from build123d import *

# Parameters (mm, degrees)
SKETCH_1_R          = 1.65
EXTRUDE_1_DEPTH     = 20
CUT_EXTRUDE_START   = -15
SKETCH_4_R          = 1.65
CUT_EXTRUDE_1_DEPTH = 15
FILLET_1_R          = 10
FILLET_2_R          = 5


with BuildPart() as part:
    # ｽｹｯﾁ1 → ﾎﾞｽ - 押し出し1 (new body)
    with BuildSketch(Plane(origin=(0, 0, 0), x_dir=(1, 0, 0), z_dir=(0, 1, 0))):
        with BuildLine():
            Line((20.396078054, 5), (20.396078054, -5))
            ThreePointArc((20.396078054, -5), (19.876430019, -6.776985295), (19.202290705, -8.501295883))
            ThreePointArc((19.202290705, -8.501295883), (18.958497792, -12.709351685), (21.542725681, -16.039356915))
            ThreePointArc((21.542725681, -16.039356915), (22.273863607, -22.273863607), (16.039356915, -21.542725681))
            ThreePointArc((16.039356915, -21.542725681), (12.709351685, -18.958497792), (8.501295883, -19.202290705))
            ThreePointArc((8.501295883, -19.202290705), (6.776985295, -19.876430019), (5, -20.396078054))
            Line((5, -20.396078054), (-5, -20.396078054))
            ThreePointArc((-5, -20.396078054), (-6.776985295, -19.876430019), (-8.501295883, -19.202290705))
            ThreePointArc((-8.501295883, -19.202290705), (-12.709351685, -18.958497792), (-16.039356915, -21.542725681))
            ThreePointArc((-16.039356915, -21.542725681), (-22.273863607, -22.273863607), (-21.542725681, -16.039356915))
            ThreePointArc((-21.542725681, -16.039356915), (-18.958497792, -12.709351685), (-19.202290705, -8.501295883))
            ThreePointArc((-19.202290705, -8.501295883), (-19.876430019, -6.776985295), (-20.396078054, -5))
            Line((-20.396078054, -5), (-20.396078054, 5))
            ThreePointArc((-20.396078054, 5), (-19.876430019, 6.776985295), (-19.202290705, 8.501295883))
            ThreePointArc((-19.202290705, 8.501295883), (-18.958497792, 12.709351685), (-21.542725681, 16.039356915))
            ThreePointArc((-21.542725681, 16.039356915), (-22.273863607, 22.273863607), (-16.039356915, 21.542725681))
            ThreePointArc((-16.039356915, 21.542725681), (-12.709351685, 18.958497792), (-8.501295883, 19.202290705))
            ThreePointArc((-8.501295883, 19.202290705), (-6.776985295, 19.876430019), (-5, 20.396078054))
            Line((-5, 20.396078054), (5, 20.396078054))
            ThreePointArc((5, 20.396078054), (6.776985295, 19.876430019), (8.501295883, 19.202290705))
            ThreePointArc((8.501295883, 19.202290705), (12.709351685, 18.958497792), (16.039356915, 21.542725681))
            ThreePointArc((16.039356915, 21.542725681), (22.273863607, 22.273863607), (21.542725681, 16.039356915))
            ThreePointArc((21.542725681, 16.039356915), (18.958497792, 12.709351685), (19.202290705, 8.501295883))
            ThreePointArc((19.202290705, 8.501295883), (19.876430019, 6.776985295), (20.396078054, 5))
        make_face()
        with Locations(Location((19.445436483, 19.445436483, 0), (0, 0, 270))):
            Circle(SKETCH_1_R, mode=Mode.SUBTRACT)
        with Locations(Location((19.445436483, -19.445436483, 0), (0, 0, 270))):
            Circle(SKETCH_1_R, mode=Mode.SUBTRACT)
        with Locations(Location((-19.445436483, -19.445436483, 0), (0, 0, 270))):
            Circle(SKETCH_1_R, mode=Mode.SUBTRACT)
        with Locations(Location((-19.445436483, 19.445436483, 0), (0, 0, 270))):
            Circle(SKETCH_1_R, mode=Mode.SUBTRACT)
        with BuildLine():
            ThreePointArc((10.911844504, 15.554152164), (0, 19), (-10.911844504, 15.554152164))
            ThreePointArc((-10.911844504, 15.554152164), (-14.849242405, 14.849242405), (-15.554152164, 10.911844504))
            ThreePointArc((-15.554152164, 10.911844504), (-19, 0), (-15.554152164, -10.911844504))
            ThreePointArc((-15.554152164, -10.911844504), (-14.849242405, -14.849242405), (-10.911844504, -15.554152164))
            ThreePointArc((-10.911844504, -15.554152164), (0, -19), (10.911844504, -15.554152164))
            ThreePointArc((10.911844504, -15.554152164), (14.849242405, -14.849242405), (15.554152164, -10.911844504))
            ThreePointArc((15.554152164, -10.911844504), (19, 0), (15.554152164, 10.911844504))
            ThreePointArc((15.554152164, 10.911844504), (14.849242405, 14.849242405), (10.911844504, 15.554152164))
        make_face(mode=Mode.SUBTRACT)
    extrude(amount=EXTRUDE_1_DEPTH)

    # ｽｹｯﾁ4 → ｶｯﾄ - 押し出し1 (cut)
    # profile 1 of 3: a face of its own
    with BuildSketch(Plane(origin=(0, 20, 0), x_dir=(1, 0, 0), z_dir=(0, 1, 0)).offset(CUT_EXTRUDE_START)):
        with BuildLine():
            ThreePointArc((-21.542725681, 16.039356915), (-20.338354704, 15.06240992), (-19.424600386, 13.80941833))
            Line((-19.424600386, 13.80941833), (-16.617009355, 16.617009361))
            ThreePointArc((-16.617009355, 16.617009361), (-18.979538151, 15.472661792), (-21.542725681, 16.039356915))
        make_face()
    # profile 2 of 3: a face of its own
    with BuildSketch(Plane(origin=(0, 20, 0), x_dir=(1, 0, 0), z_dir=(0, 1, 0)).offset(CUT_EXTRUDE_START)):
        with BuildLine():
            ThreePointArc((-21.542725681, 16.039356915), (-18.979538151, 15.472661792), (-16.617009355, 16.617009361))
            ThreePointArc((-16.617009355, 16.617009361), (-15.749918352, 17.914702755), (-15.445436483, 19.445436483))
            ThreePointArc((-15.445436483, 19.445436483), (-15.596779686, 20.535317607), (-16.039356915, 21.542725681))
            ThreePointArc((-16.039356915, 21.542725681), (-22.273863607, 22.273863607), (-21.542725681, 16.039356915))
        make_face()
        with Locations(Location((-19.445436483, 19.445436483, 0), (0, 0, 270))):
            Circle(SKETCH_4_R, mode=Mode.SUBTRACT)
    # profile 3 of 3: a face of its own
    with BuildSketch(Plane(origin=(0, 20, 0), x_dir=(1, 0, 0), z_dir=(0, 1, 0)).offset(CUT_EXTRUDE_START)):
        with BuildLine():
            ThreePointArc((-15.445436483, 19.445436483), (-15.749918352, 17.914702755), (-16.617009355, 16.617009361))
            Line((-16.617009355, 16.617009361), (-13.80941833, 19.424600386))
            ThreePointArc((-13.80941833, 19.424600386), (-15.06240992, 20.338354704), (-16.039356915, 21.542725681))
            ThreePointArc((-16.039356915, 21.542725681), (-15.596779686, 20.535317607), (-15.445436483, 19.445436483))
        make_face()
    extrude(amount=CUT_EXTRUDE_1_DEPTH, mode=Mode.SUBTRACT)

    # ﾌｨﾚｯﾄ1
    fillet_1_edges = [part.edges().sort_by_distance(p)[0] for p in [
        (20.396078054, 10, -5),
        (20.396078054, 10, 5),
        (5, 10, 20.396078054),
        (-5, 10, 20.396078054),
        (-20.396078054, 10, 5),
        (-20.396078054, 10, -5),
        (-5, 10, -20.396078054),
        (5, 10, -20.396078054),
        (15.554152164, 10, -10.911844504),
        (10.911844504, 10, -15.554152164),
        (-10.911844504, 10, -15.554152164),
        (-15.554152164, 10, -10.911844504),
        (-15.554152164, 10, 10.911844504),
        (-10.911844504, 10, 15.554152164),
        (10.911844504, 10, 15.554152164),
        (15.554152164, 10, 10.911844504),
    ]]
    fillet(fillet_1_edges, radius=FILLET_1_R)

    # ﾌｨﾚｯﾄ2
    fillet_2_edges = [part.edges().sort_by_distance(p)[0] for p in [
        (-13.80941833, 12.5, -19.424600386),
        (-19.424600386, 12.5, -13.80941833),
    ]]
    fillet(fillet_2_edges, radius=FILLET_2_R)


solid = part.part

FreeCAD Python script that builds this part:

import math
import FreeCAD as App
import Part
import Sketcher
Q = App.Units.Quantity


def edges_at(feature, points):
    """Names of the edges that pass closest to the given points."""
    edges = feature.Shape.Edges
    near = lambda p: min(range(len(edges)), key=lambda i: edges[i].distToShape(Part.Vertex(*p))[0])
    return sorted({f"Edge{near(p) + 1}" for p in points})

doc = App.newDocument("Part")
body = doc.addObject("PartDesign::Body", "Body")

sketch1 = body.newObject("Sketcher::SketchObject", "Sketch")
sketch1.AttachmentSupport = (doc.getObject("XZ_Plane"), [""])
sketch1.MapMode = "FlatFace"
sketch1.addGeometry([
    Part.LineSegment(App.Vector(20.4, 5, 0), App.Vector(20.4, -5, 0)),
    Part.ArcOfCircle(Part.Circle(App.Vector(0, 0, 0), App.Vector(0, 0, 1), 21), math.radians(-23.88), math.radians(-13.77)),
    Part.ArcOfCircle(Part.Circle(App.Vector(24.7, -10.9, 0), App.Vector(0, 0, 1), 6), math.radians(156), math.radians(238)),
    Part.ArcOfCircle(Part.Circle(App.Vector(19.4, -19.4, 0), App.Vector(0, 0, 1), 4), math.radians(-148), math.radians(58)),
    Part.ArcOfCircle(Part.Circle(App.Vector(10.9, -24.7, 0), App.Vector(0, 0, 1), 6), math.radians(32), math.radians(114)),
    Part.ArcOfCircle(Part.Circle(App.Vector(0, 0, 0), App.Vector(0, 0, 1), 21), math.radians(-76.23), math.radians(-66.12)),
    Part.LineSegment(App.Vector(5, -20.4, 0), App.Vector(-5, -20.4, 0)),
    Part.ArcOfCircle(Part.Circle(App.Vector(0, 0, 0), App.Vector(0, 0, 1), 21), math.radians(-113.88), math.radians(-103.77)),
    Part.ArcOfCircle(Part.Circle(App.Vector(-10.9, -24.7, 0), App.Vector(0, 0, 1), 6), math.radians(66), math.radians(148)),
    Part.ArcOfCircle(Part.Circle(App.Vector(-19.4, -19.4, 0), App.Vector(0, 0, 1), 4), math.radians(122), math.radians(328)),
    Part.ArcOfCircle(Part.Circle(App.Vector(-24.7, -10.9, 0), App.Vector(0, 0, 1), 6), math.radians(-58), math.radians(24)),
    Part.ArcOfCircle(Part.Circle(App.Vector(0, 0, 0), App.Vector(0, 0, 1), 21), math.radians(-166.23), math.radians(-156.12)),
    Part.LineSegment(App.Vector(-20.4, -5, 0), App.Vector(-20.4, 5, 0)),
    Part.ArcOfCircle(Part.Circle(App.Vector(0, 0, 0), App.Vector(0, 0, 1), 21), math.radians(156.12), math.radians(166.23)),
    Part.ArcOfCircle(Part.Circle(App.Vector(-24.7, 10.9, 0), App.Vector(0, 0, 1), 6), math.radians(-24), math.radians(58)),
    Part.ArcOfCircle(Part.Circle(App.Vector(-19.4, 19.4, 0), App.Vector(0, 0, 1), 4), math.radians(32), math.radians(238)),
    Part.ArcOfCircle(Part.Circle(App.Vector(-10.9, 24.7, 0), App.Vector(0, 0, 1), 6), math.radians(-148), math.radians(-66)),
    Part.ArcOfCircle(Part.Circle(App.Vector(0, 0, 0), App.Vector(0, 0, 1), 21), math.radians(103.77), math.radians(113.88)),
    Part.LineSegment(App.Vector(-5, 20.4, 0), App.Vector(5, 20.4, 0)),
    Part.ArcOfCircle(Part.Circle(App.Vector(0, 0, 0), App.Vector(0, 0, 1), 21), math.radians(66.12), math.radians(76.23)),
    Part.ArcOfCircle(Part.Circle(App.Vector(10.9, 24.7, 0), App.Vector(0, 0, 1), 6), math.radians(-114), math.radians(-32)),
    Part.ArcOfCircle(Part.Circle(App.Vector(19.4, 19.4, 0), App.Vector(0, 0, 1), 4), math.radians(-58), math.radians(148)),
    Part.ArcOfCircle(Part.Circle(App.Vector(24.7, 10.9, 0), App.Vector(0, 0, 1), 6), math.radians(122), math.radians(204)),
    Part.ArcOfCircle(Part.Circle(App.Vector(0, 0, 0), App.Vector(0, 0, 1), 21), math.radians(13.77), math.radians(23.88)),
    Part.Circle(App.Vector(19.4, 19.4, 0), App.Vector(0, 0, 1), 1.6),
    Part.Circle(App.Vector(-19.4, 19.4, 0), App.Vector(0, 0, 1), 1.6),
    Part.Circle(App.Vector(19.4, -19.4, 0), App.Vector(0, 0, 1), 1.6),
    Part.ArcOfCircle(Part.Circle(App.Vector(12.4, -12.4, 0), App.Vector(0, 0, 1), 3.5), math.radians(-115), math.radians(25)),
    Part.ArcOfCircle(Part.Circle(App.Vector(0, 0, 0), App.Vector(0, 0, 1), 19), math.radians(-35), math.radians(35)),
    Part.ArcOfCircle(Part.Circle(App.Vector(12.4, 12.4, 0), App.Vector(0, 0, 1), 3.5), math.radians(-25), math.radians(115)),
    Part.ArcOfCircle(Part.Circle(App.Vector(0, 0, 0), App.Vector(0, 0, 1), 19), math.radians(55), math.radians(125)),
    Part.ArcOfCircle(Part.Circle(App.Vector(-12.4, 12.4, 0), App.Vector(0, 0, 1), 3.5), math.radians(65), math.radians(205)),
    Part.ArcOfCircle(Part.Circle(App.Vector(0, 0, 0), App.Vector(0, 0, 1), 19), math.radians(145), math.radians(215)),
    Part.ArcOfCircle(Part.Circle(App.Vector(-12.4, -12.4, 0), App.Vector(0, 0, 1), 3.5), math.radians(155), math.radians(295)),
    Part.ArcOfCircle(Part.Circle(App.Vector(0, 0, 0), App.Vector(0, 0, 1), 19), math.radians(-125), math.radians(-55)),
    Part.Circle(App.Vector(-19.4, -19.4, 0), App.Vector(0, 0, 1), 1.6),
], False)
sketch1.addConstraint([
    Sketcher.Constraint("Coincident", 0, 2, 1, 2),
    Sketcher.Constraint("Tangent", 1, 1, 2, 1),
    Sketcher.Constraint("Tangent", 2, 2, 3, 2),
    Sketcher.Constraint("Tangent", 3, 1, 4, 1),
    Sketcher.Constraint("Tangent", 4, 2, 5, 2),
    Sketcher.Constraint("Coincident", 5, 1, 6, 1),
    Sketcher.Constraint("Coincident", 6, 2, 7, 2),
    Sketcher.Constraint("Tangent", 7, 1, 8, 1),
    Sketcher.Constraint("Tangent", 8, 2, 9, 2),
    Sketcher.Constraint("Tangent", 9, 1, 10, 1),
    Sketcher.Constraint("Tangent", 10, 2, 11, 2),
    Sketcher.Constraint("Coincident", 11, 1, 12, 1),
    Sketcher.Constraint("Coincident", 12, 2, 13, 2),
    Sketcher.Constraint("Tangent", 13, 1, 14, 1),
    Sketcher.Constraint("Tangent", 14, 2, 15, 2),
    Sketcher.Constraint("Tangent", 15, 1, 16, 1),
    Sketcher.Constraint("Tangent", 16, 2, 17, 2),
    Sketcher.Constraint("Coincident", 17, 1, 18, 1),
    Sketcher.Constraint("Coincident", 18, 2, 19, 2),
    Sketcher.Constraint("Tangent", 19, 1, 20, 1),
    Sketcher.Constraint("Tangent", 20, 2, 21, 2),
    Sketcher.Constraint("Tangent", 21, 1, 22, 1),
    Sketcher.Constraint("Tangent", 22, 2, 23, 2),
    Sketcher.Constraint("Coincident", 23, 1, 0, 1),
    Sketcher.Constraint("Coincident", 27, 2, 28, 1),
    Sketcher.Constraint("Coincident", 28, 2, 29, 1),
    Sketcher.Constraint("Coincident", 29, 2, 30, 1),
    Sketcher.Constraint("Coincident", 30, 2, 31, 1),
    Sketcher.Constraint("Coincident", 31, 2, 32, 1),
    Sketcher.Constraint("Coincident", 32, 2, 33, 1),
    Sketcher.Constraint("Coincident", 33, 2, 34, 1),
    Sketcher.Constraint("Coincident", 34, 2, 27, 1),
    Sketcher.Constraint("Vertical", 0),
    Sketcher.Constraint("Horizontal", 6),
    Sketcher.Constraint("Vertical", 12),
    Sketcher.Constraint("Horizontal", 18),
    Sketcher.Constraint("Coincident", 1, 3, -1, 1),
    Sketcher.Constraint("Coincident", 5, 3, -1, 1),
    Sketcher.Constraint("Coincident", 7, 3, -1, 1),
    Sketcher.Constraint("Coincident", 11, 3, -1, 1),
    Sketcher.Constraint("Coincident", 13, 3, -1, 1),
    Sketcher.Constraint("Coincident", 17, 3, -1, 1),
    Sketcher.Constraint("Coincident", 19, 3, -1, 1),
    Sketcher.Constraint("Coincident", 23, 3, -1, 1),
    Sketcher.Constraint("Coincident", 28, 3, -1, 1),
    Sketcher.Constraint("Coincident", 30, 3, -1, 1),
    Sketcher.Constraint("Coincident", 32, 3, -1, 1),
    Sketcher.Constraint("Coincident", 34, 3, -1, 1),
    Sketcher.Constraint("Coincident", 24, 3, 21, 3),
    Sketcher.Constraint("Coincident", 25, 3, 15, 3),
    Sketcher.Constraint("Coincident", 26, 3, 3, 3),
    Sketcher.Constraint("Coincident", 35, 3, 9, 3),
    Sketcher.Constraint("Equal", 2, 4),
    Sketcher.Constraint("Equal", 1, 5),
    Sketcher.Constraint("Equal", 5, 7),
    Sketcher.Constraint("Equal", 4, 8),
    Sketcher.Constraint("Equal", 3, 9),
    Sketcher.Constraint("Equal", 8, 10),
    Sketcher.Constraint("Equal", 7, 11),
    Sketcher.Constraint("Equal", 11, 13),
    Sketcher.Constraint("Equal", 10, 14),
    Sketcher.Constraint("Equal", 9, 15),
    Sketcher.Constraint("Equal", 14, 16),
    Sketcher.Constraint("Equal", 13, 17),
    Sketcher.Constraint("Equal", 17, 19),
    Sketcher.Constraint("Equal", 16, 20),
    Sketcher.Constraint("Equal", 15, 21),
    Sketcher.Constraint("Equal", 20, 22),
    Sketcher.Constraint("Equal", 19, 23),
    Sketcher.Constraint("Equal", 24, 25),
    Sketcher.Constraint("Equal", 25, 26),
    Sketcher.Constraint("Equal", 27, 29),
    Sketcher.Constraint("Equal", 28, 30),
    Sketcher.Constraint("Equal", 29, 31),
    Sketcher.Constraint("Equal", 30, 32),
    Sketcher.Constraint("Equal", 31, 33),
    Sketcher.Constraint("Equal", 32, 34),
    Sketcher.Constraint("Equal", 26, 35),
    Sketcher.Constraint("Symmetric", 3, 3, 15, 3, -1, 1),
    Sketcher.Constraint("Symmetric", 9, 3, 21, 3, -1, 1),
    Sketcher.Constraint("Symmetric", 27, 3, 31, 3, -1, 1),
    Sketcher.Constraint("Symmetric", 29, 3, 33, 3, -1, 1),
    Sketcher.Constraint("Symmetric", 3, 3, 9, 3, -2),
    Sketcher.Constraint("Symmetric", 29, 3, 31, 3, -2),
    Sketcher.Constraint("Horizontal", 0, 2, 11, 1),
    Sketcher.Constraint("Vertical", 6, 2, 17, 1),
    Sketcher.Constraint("Equal", 18, 0),
    Sketcher.Constraint("Radius", 1, 21.0),
    Sketcher.Constraint("Radius", 2, 6.0),
    Sketcher.Constraint("Radius", 3, 4.0),
    Sketcher.Constraint("Radius", 28, 19.0),
    Sketcher.Constraint("Diameter", 24, 3.3),
    Sketcher.Constraint("Radius", 27, 3.5),
    Sketcher.Constraint("DistanceX", 6, 2, 6, 1, 10.0),
    Sketcher.Constraint("DistanceX", -1, 1, 2, 3, 24.688659),
    Sketcher.Constraint("DistanceY", 4, 3, -1, 1, 24.688659),
    Sketcher.Constraint("DistanceX", -1, 1, 27, 3, 12.374369),
    Sketcher.Constraint("DistanceY", 27, 3, -1, 1, 12.374369),
])
pad1 = body.newObject("PartDesign::Pad", "Pad")
pad1.Profile = sketch1
pad1.Length = 20
pad1.Reversed = True

sketch2 = body.newObject("Sketcher::SketchObject", "Sketch001")
sketch2.AttachmentSupport = (doc.getObject("XZ_Plane"), [""])
sketch2.MapMode = "FlatFace"
sketch2.AttachmentOffset = App.Placement(App.Vector(0, 0, -5), App.Rotation())
sketch2.addGeometry([
    Part.ArcOfCircle(Part.Circle(App.Vector(-24.7, -10.9, 0), App.Vector(0, 0, 1), 6), math.radians(-58), math.radians(-29)),
    Part.LineSegment(App.Vector(-19.4, -13.8, 0), App.Vector(-13.8, -19.4, 0)),
    Part.ArcOfCircle(Part.Circle(App.Vector(-10.9, -24.7, 0), App.Vector(0, 0, 1), 6), math.radians(119), math.radians(148)),
    Part.ArcOfCircle(Part.Circle(App.Vector(-19.4, -19.4, 0), App.Vector(0, 0, 1), 4), math.radians(122), math.radians(328)),
    Part.Circle(App.Vector(-19.4, -19.4, 0), App.Vector(0, 0, 1), 1.6),
], False)
sketch2.addConstraint([
    Sketcher.Constraint("Coincident", 0, 2, 1, 1),
    Sketcher.Constraint("Coincident", 1, 2, 2, 1),
    Sketcher.Constraint("Tangent", 2, 2, 3, 2),
    Sketcher.Constraint("Tangent", 3, 1, 0, 1),
    Sketcher.Constraint("Coincident", 4, 3, 3, 3),
    Sketcher.Constraint("Equal", 0, 2),
    Sketcher.Constraint("Radius", 0, 6.0),
    Sketcher.Constraint("Radius", 3, 4.0),
    Sketcher.Constraint("Diameter", 4, 3.3),
    Sketcher.Constraint("Angle", 1, Q("-45 deg")),
    Sketcher.Constraint("DistanceX", 0, 2, -1, 1, 19.4246),
    Sketcher.Constraint("DistanceY", 1, 2, -1, 1, 19.4246),
    Sketcher.Constraint("DistanceY", 3, 3, 0, 3, 8.515199),
    Sketcher.Constraint("DistanceX", 3, 3, 2, 3, 8.515199),
    Sketcher.Constraint("DistanceX", 0, 3, -1, 1, 24.688659),
])
pocket1 = body.newObject("PartDesign::Pocket", "Pocket")
pocket1.Profile = sketch2
pocket1.Length = 15
doc.recompute()

fillet = body.newObject("PartDesign::Fillet", "Fillet")
fillet.Base = (pocket1, edges_at(pocket1, [
    (20.396, 10, -5),
    (20.396, 10, 5),
    (5, 10, 20.396),
    (-5, 10, 20.396),
    (-20.396, 10, 5),
    (-20.396, 10, -5),
    (-5, 10, -20.396),
    (5, 10, -20.396),
    (15.554, 10, -10.912),
    (10.912, 10, -15.554),
    (-10.912, 10, -15.554),
    (-15.554, 10, -10.912),
    (-15.554, 10, 10.912),
    (-10.912, 10, 15.554),
    (10.912, 10, 15.554),
    (15.554, 10, 10.912),
]))
fillet.Radius = 10
doc.recompute()

fillet2 = body.newObject("PartDesign::Fillet", "Fillet001")
fillet2.Base = (fillet, edges_at(fillet, [(-13.809, 12.5, -19.425), (-19.425, 12.5, -13.809)]))
fillet2.Radius = 5

doc.recompute()
